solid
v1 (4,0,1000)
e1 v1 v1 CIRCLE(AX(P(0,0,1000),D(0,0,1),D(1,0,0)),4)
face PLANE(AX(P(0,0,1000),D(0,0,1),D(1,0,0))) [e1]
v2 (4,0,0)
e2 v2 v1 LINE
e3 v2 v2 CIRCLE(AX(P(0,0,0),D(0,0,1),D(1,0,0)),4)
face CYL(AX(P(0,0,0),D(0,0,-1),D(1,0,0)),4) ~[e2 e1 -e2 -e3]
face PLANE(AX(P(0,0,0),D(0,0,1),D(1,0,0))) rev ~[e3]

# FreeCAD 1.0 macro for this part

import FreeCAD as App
import Part
import Sketcher
from FreeCAD import Vector
Q = App.Units.Quantity

doc = App.newDocument("Part")
body = doc.addObject("PartDesign::Body", "Body")

# Sketch on XY plane
sketch1 = body.newObject("Sketcher::SketchObject", "Sketch")
sketch1.AttachmentSupport = (doc.getObject("XY_Plane"), [""])
sketch1.MapMode = "FlatFace"
sketch1.addGeometry(Part.Circle(Vector(0, 0, 0), Vector(0, 0, 1), 4), False)
sketch1.addConstraint([
    Sketcher.Constraint("Coincident", 0, 3, -1, 1),
    Sketcher.Constraint("Diameter", 0, Q("8 mm")),
])
pad1 = body.newObject("PartDesign::Pad", "Pad")
pad1.Profile = sketch1
pad1.Length = 1000

doc.recompute()
